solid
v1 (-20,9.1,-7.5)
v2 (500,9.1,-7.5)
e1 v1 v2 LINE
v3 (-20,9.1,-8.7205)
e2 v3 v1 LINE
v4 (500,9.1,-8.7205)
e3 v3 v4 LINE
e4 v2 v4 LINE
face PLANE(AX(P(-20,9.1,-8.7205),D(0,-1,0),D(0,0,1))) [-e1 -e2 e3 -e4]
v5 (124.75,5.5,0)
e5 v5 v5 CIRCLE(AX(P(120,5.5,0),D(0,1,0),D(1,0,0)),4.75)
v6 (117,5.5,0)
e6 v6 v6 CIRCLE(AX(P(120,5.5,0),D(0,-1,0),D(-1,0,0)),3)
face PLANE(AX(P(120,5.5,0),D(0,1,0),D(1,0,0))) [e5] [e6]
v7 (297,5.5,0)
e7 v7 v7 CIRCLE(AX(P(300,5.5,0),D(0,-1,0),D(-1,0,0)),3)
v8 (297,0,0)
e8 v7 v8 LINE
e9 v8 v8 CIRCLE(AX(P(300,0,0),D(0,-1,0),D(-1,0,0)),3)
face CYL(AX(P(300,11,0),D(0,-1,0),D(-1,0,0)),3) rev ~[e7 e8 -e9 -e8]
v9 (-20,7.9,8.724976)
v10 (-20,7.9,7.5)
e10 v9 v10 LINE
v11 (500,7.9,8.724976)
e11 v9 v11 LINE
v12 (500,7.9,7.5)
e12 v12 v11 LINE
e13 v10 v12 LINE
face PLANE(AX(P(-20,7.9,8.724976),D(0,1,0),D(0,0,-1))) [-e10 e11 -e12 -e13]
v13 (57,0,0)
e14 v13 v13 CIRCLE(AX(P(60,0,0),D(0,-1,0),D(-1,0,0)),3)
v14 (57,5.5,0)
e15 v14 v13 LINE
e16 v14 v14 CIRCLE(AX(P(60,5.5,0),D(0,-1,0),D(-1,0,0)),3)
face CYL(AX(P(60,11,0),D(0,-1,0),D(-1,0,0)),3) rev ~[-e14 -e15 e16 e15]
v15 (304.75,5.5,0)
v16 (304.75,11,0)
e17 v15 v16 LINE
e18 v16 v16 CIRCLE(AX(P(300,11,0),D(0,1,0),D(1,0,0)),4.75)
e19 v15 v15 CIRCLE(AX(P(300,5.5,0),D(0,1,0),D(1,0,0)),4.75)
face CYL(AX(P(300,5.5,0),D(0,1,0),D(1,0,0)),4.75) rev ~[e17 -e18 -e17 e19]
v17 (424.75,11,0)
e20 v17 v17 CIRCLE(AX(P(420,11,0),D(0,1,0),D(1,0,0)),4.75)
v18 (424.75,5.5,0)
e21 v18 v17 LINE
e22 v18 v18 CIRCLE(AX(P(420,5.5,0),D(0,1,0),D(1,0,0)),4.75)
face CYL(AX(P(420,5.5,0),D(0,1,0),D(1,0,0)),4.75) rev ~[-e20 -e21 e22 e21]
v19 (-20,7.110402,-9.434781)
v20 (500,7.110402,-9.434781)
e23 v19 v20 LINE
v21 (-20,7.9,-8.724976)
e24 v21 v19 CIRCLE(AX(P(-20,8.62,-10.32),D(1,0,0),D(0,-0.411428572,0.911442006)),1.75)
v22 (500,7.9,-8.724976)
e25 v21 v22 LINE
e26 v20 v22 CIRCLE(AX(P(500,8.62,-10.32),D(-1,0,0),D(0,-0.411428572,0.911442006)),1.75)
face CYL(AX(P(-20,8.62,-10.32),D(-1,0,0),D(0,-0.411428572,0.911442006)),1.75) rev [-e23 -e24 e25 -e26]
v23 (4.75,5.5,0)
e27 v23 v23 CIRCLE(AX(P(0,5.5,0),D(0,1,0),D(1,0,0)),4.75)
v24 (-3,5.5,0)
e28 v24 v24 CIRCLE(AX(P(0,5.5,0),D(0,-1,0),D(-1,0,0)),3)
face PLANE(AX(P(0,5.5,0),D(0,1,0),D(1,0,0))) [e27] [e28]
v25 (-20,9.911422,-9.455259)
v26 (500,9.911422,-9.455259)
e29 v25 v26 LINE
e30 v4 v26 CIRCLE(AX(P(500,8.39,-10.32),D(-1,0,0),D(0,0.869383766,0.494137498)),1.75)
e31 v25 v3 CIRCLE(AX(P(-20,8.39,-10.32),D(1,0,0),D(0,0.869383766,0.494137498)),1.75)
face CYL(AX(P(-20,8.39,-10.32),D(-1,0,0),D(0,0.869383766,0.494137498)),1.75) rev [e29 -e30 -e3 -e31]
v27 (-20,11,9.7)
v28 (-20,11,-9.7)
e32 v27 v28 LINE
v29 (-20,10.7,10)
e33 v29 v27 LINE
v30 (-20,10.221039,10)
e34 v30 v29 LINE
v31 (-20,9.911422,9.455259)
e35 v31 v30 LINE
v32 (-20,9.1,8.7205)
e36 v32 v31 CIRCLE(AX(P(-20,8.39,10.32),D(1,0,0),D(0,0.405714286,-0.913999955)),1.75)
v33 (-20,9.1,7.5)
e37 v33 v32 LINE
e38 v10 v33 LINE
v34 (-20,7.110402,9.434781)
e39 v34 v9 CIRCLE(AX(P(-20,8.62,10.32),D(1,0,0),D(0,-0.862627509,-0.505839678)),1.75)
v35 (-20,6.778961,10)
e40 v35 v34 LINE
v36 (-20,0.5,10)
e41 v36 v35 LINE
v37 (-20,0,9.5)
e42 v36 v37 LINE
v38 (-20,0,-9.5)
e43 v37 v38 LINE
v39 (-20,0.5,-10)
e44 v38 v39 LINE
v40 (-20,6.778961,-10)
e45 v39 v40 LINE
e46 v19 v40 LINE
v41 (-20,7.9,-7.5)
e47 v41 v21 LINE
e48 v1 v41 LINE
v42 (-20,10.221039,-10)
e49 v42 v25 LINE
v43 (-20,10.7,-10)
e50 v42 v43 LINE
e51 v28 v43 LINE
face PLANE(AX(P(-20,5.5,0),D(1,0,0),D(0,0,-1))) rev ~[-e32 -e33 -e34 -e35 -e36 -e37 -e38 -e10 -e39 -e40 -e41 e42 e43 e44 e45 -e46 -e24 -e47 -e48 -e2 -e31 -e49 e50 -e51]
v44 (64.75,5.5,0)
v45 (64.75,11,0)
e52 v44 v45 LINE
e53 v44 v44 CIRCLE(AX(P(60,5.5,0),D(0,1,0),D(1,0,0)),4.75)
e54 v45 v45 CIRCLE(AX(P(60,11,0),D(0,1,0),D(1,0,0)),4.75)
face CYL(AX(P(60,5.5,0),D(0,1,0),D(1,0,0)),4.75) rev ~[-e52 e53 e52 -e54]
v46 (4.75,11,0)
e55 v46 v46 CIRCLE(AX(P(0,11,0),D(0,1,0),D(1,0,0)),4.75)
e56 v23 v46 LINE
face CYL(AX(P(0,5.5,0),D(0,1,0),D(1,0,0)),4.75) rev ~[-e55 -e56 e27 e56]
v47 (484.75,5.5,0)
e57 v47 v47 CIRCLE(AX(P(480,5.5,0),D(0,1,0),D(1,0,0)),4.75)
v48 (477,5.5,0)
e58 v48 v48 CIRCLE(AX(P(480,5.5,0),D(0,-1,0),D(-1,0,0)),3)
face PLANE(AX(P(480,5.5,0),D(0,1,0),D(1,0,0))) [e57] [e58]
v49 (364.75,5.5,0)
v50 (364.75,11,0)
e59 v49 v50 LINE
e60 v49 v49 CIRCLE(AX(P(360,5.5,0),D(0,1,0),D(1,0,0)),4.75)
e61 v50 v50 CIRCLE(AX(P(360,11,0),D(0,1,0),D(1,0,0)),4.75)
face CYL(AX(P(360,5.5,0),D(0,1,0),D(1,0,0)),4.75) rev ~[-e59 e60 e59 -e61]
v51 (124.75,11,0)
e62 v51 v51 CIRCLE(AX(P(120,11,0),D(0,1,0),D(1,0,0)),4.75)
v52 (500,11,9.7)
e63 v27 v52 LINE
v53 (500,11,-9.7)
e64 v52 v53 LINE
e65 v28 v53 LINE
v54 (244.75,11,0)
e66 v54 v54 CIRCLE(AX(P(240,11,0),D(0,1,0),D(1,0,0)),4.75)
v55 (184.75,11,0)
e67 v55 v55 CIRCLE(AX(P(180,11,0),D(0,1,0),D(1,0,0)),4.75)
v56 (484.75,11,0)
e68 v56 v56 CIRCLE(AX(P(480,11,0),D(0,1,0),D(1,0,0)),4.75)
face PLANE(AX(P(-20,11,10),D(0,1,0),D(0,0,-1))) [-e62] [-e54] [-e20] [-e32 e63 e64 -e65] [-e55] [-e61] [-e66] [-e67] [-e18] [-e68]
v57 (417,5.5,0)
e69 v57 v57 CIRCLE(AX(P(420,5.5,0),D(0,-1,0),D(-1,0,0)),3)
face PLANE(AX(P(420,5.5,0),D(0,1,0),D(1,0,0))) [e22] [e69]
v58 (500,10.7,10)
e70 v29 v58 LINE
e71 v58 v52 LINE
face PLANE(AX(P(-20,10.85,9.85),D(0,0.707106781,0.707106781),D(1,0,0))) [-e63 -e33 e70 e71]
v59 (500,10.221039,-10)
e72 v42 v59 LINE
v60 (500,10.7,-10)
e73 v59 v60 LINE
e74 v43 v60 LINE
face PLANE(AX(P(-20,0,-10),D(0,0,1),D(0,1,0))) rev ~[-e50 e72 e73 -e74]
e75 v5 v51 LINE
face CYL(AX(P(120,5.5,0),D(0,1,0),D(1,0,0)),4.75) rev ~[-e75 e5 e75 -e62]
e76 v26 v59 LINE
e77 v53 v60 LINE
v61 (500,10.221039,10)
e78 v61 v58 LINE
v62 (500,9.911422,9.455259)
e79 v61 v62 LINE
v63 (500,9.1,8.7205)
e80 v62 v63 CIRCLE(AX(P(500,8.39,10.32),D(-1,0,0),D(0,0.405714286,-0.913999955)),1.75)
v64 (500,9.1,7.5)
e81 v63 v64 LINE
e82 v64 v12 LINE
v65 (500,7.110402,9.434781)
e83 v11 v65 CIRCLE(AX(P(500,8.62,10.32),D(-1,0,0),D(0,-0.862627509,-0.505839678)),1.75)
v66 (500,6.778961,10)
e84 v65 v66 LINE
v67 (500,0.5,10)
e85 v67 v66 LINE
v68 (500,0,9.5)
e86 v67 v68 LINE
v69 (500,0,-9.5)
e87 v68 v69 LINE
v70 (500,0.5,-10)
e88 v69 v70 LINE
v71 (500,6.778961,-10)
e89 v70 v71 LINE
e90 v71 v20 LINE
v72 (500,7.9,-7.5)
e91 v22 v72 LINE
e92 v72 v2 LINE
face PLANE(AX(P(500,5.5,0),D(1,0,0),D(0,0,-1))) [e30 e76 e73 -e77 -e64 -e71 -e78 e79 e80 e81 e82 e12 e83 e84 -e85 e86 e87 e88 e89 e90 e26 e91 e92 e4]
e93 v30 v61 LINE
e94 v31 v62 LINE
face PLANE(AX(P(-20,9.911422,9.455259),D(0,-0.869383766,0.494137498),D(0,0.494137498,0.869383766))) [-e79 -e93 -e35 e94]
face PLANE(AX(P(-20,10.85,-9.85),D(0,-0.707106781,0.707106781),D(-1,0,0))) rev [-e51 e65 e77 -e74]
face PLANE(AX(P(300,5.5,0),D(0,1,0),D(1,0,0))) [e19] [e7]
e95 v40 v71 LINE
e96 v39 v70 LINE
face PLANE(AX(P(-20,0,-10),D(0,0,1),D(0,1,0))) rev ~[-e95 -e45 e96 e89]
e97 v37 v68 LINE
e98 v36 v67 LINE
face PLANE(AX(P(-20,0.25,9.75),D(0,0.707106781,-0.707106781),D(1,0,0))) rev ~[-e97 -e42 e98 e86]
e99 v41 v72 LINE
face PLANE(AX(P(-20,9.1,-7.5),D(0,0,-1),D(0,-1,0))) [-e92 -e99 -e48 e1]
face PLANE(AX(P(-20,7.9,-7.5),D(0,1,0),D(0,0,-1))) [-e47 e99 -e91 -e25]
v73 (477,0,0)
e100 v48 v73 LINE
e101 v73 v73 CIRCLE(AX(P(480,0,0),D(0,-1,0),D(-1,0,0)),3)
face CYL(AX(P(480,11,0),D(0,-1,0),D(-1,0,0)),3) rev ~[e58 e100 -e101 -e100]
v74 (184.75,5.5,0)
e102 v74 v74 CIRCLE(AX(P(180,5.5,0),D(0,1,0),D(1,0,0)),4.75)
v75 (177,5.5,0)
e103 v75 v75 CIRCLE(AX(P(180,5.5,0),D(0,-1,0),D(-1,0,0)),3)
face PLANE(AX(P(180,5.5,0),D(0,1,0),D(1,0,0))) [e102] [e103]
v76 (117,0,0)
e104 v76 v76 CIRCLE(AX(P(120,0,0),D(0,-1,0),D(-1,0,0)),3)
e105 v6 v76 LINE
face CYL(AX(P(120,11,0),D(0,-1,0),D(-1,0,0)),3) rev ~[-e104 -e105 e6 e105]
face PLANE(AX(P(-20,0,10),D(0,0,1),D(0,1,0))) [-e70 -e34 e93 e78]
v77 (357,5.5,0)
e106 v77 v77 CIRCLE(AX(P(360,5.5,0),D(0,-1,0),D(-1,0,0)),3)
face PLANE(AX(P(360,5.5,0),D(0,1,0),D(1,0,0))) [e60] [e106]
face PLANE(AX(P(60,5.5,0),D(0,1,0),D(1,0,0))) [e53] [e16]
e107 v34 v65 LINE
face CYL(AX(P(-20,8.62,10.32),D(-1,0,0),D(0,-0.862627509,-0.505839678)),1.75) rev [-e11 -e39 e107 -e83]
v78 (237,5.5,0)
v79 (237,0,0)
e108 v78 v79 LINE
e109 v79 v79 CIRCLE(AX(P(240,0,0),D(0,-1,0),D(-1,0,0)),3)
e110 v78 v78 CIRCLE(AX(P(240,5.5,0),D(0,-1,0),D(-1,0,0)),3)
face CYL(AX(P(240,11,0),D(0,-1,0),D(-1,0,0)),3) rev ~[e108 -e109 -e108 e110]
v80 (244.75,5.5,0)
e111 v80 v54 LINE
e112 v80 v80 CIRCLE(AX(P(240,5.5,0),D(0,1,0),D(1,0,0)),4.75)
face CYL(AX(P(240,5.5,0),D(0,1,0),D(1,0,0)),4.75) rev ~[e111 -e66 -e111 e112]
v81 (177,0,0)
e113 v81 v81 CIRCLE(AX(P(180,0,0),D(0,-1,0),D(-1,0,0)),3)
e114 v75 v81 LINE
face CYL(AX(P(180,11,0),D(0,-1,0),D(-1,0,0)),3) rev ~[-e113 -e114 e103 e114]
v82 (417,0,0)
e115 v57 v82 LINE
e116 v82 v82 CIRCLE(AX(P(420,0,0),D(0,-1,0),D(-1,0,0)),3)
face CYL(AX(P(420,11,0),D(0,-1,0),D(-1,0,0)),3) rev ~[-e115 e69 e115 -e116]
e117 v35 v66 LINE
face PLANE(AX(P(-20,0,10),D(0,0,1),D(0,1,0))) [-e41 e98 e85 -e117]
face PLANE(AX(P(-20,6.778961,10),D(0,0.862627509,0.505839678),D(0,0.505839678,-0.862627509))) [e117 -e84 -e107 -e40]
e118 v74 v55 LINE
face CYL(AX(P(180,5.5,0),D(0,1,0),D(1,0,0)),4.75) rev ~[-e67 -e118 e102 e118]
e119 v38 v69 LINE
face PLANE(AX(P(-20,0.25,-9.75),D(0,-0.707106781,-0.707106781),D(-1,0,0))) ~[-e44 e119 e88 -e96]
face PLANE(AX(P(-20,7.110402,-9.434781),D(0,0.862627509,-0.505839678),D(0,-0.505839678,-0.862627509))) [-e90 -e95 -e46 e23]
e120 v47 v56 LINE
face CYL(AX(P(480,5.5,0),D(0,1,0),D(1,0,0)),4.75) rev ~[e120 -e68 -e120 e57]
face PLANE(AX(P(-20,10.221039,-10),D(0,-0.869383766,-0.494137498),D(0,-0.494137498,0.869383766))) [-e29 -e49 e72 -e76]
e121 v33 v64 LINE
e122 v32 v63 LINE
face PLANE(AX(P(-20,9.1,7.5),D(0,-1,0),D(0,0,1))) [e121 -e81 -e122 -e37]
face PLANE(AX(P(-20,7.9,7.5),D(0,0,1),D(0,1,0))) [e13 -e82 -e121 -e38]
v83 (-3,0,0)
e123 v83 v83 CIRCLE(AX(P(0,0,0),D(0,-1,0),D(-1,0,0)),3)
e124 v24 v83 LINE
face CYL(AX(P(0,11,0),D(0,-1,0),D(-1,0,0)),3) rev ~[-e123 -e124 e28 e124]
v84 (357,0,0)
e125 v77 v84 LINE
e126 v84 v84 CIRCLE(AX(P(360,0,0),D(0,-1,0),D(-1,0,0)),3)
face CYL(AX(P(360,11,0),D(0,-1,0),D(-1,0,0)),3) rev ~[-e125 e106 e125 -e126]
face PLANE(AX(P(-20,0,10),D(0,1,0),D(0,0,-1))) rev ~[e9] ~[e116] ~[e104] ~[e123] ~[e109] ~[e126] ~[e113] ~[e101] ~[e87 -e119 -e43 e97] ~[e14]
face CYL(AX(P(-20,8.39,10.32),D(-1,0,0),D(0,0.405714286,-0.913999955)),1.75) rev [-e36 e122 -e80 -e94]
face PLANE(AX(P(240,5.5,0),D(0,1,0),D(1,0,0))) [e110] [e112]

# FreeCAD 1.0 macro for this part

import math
import FreeCAD as App
import Part
import Sketcher

V = App.Vector


def edges_at(feature, points):
    """Names of the edges that pass closest to the given points."""
    edges = feature.Shape.Edges
    near = lambda p: min(range(len(edges)), key=lambda i: edges[i].distToShape(Part.Vertex(*p))[0])
    return sorted({f"Edge{near(p) + 1}" for p in points})

doc = App.newDocument("Part")
params = doc.addObject("Spreadsheet::Sheet", "Params")
for row, (alias, value) in enumerate([
    ("sketch1_width", "11 mm"),
    ("sketch1_height", "20 mm"),
    ("pad1_length", "520 mm"),
    ("sketch2_radius", "1.75 mm"),
    ("sketch2_width", "1.2 mm"),
    ("sketch3_diameter", "6 mm"),
    ("hole_diameter", "6 mm"),
    ("hole_cbore_diameter", "9.5 mm"),
    ("hole_cbore_depth", "5.5 mm"),
    ("linearpattern_pitch", "60 mm"),
    ("chamfer_size", "0.3 mm"),
    ("chamfer2_size", "0.5 mm"),
], start=1):
    params.set(f"A{row}", alias)
    params.set(f"B{row}", "=" + value)
    params.setAlias(f"B{row}", alias)

body = doc.addObject("PartDesign::Body", "Body")

# Sketch on YZ plane
sketch1 = body.newObject("Sketcher::SketchObject", "Sketch")
sketch1.AttachmentSupport = (doc.getObject("YZ_Plane"), [""])
sketch1.MapMode = "FlatFace"
sketch1.AttachmentOffset = App.Placement(V(0, 0, -20), App.Rotation())
sketch1.addGeometry([
    Part.LineSegment(V(11, 10, 0), V(0, 10, 0)),
    Part.LineSegment(V(0, 10, 0), V(0, -10, 0)),
    Part.LineSegment(V(0, -10, 0), V(11, -10, 0)),
    Part.LineSegment(V(11, -10, 0), V(11, 10, 0)),
], False)
sketch1.addConstraint([
    Sketcher.Constraint("Coincident", 0, 2, 1, 1),
    Sketcher.Constraint("Coincident", 1, 2, 2, 1),
    Sketcher.Constraint("Coincident", 2, 2, 3, 1),
    Sketcher.Constraint("Coincident", 3, 2, 0, 1),
    Sketcher.Constraint("Horizontal", 0),
    Sketcher.Constraint("Vertical", 1),
    Sketcher.Constraint("Horizontal", 2),
    Sketcher.Constraint("Vertical", 3),
    Sketcher.Constraint("Symmetric", 0, 2, 1, 2, -1, 1),
    Sketcher.Constraint("DistanceX", 0, 2, 0, 1, 11.0),
    Sketcher.Constraint("DistanceY", 1, 2, 1, 1, 20.0),
])
sketch1.setExpression("Constraints[9]", "Params.sketch1_width")
sketch1.setExpression("Constraints[10]", "Params.sketch1_height")
pad1 = body.newObject("PartDesign::Pad", "Pad")
pad1.Profile = sketch1
pad1.setExpression("Length", "Params.pad1_length")

# Sketch on YZ plane
sketch2 = body.newObject("Sketcher::SketchObject", "Sketch001")
sketch2.AttachmentSupport = (doc.getObject("YZ_Plane"), [""])
sketch2.MapMode = "FlatFace"
sketch2.AttachmentOffset = App.Placement(V(0, 0, -20), App.Rotation())
sketch2.addGeometry([
    Part.LineSegment(V(10.2, -10, 0), V(9.9, -9.5, 0)),  # 0
    Part.ArcOfCircle(Part.Circle(V(8.4, -10.3, 0), V(0, 0, 1), 1.8), math.radians(30), math.radians(66)),  # 1
    Part.LineSegment(V(9.1, -8.7, 0), V(9.1, -7.5, 0)),  # 2
    Part.LineSegment(V(9.1, -7.5, 0), V(7.9, -7.5, 0)),  # 3
    Part.LineSegment(V(7.9, -7.5, 0), V(7.9, -8.7, 0)),  # 4
    Part.ArcOfCircle(Part.Circle(V(8.6, -10.3, 0), V(0, 0, 1), 1.8), math.radians(114), math.radians(150)),  # 5
    Part.LineSegment(V(7.1, -9.4, 0), V(6.8, -10, 0)),  # 6
    Part.LineSegment(V(6.8, -10, 0), V(10.2, -10, 0)),  # 7
    Part.LineSegment(V(10.2, 10, 0), V(6.8, 10, 0)),  # 8
    Part.LineSegment(V(6.8, 10, 0), V(7.1, 9.4, 0)),  # 9
    Part.ArcOfCircle(Part.Circle(V(8.6, 10.3, 0), V(0, 0, 1), 1.8), math.radians(-150), math.radians(-114)),  # 10
    Part.LineSegment(V(7.9, 8.7, 0), V(7.9, 7.5, 0)),  # 11
    Part.LineSegment(V(7.9, 7.5, 0), V(9.1, 7.5, 0)),  # 12
    Part.LineSegment(V(9.1, 7.5, 0), V(9.1, 8.7, 0)),  # 13
    Part.ArcOfCircle(Part.Circle(V(8.4, 10.3, 0), V(0, 0, 1), 1.8), math.radians(-66), math.radians(-30)),  # 14
    Part.LineSegment(V(9.9, 9.5, 0), V(10.2, 10, 0)),  # 15
], False)
sketch2.addConstraint([
    Sketcher.Constraint("Tangent", 0, 2, 1, 1),
    Sketcher.Constraint("Coincident", 1, 2, 2, 1),
    Sketcher.Constraint("Coincident", 2, 2, 3, 1),
    Sketcher.Constraint("Coincident", 3, 2, 4, 1),
    Sketcher.Constraint("Coincident", 4, 2, 5, 1),
    Sketcher.Constraint("Tangent", 5, 2, 6, 1),
    Sketcher.Constraint("Coincident", 6, 2, 7, 1),
    Sketcher.Constraint("Coincident", 7, 2, 0, 1),
    Sketcher.Constraint("Coincident", 8, 2, 9, 1),
    Sketcher.Constraint("Tangent", 9, 2, 10, 1),
    Sketcher.Constraint("Coincident", 10, 2, 11, 1),
    Sketcher.Constraint("Coincident", 11, 2, 12, 1),
    Sketcher.Constraint("Coincident", 12, 2, 13, 1),
    Sketcher.Constraint("Coincident", 13, 2, 14, 1),
    Sketcher.Constraint("Tangent", 14, 2, 15, 1),
    Sketcher.Constraint("Coincident", 15, 2, 8, 1),
    Sketcher.Constraint("Vertical", 2),
    Sketcher.Constraint("Horizontal", 3),
    Sketcher.Constraint("Vertical", 4),
    Sketcher.Constraint("Horizontal", 7),
    Sketcher.Constraint("Horizontal", 8),
    Sketcher.Constraint("Vertical", 11),
    Sketcher.Constraint("Horizontal", 12),
    Sketcher.Constraint("Vertical", 13),
    Sketcher.Constraint("Equal", 1, 5),
    Sketcher.Constraint("Equal", 5, 10),
    Sketcher.Constraint("Equal", 10, 14),
    Sketcher.Constraint("Symmetric", 5, 3, 10, 3, -1),
    Sketcher.Constraint("Symmetric", 1, 3, 14, 3, -1),
    Sketcher.Constraint("Symmetric", 6, 2, 8, 2, -1),
    Sketcher.Constraint("Symmetric", 3, 2, 11, 2, -1),
    Sketcher.Constraint("Horizontal", 1, 3, 5, 3),
    Sketcher.Constraint("Vertical", 2, 2, 12, 2),
    Sketcher.Constraint("Vertical", 0, 2, 14, 2),
    Sketcher.Constraint("Radius", 1, 1.75),
    Sketcher.Constraint("DistanceX", 3, 2, 3, 1, 1.2),
    Sketcher.Constraint("DistanceY", 6, 2, -1, 1, 10.0),
    Sketcher.Constraint("DistanceX", -1, 1, 1, 2, 9.1),
    Sketcher.Constraint("DistanceY", 2, 2, -1, 1, 7.5),
    Sketcher.Constraint("DistanceX", -1, 1, 1, 3, 8.39),
    Sketcher.Constraint("DistanceY", 1, 3, -1, 1, 10.32),
    Sketcher.Constraint("DistanceX", -1, 1, 5, 3, 8.62),
    Sketcher.Constraint("DistanceX", 7, 1, 7, 2, 3.442079),
    Sketcher.Constraint("DistanceX", -1, 1, 5, 2, 7.110402),
])
sketch2.setExpression("Constraints[34]", "Params.sketch2_radius")
sketch2.setExpression("Constraints[35]", "Params.sketch2_width")
pocket1 = body.newObject("PartDesign::Pocket", "Pocket")
pocket1.Profile = sketch2
pocket1.Type = "ThroughAll"
pocket1.Reversed = True

# Sketch on XZ plane
sketch3 = body.newObject("Sketcher::SketchObject", "Sketch002")
sketch3.AttachmentSupport = (doc.getObject("XZ_Plane"), [""])
sketch3.MapMode = "FlatFace"
sketch3.AttachmentOffset = App.Placement(V(0, 0, -11), App.Rotation())
sketch3.addGeometry(Part.Circle(V(0, 0, 0), V(0, 0, 1), 3), False)
sketch3.addConstraint([
    Sketcher.Constraint("Coincident", 0, 3, -1, 1),
    Sketcher.Constraint("Diameter", 0, 6.0),
])
sketch3.setExpression("Constraints[1]", "Params.sketch3_diameter")
doc.recompute()
hole = body.newObject("PartDesign::Hole", "Hole")
hole.Profile = sketch3
hole.ThreadType = "None"
hole.setExpression("Diameter", "Params.hole_diameter")
hole.DepthType = "ThroughAll"
hole.HoleCutType = "Counterbore"
hole.setExpression("HoleCutDiameter", "Params.hole_cbore_diameter")
hole.setExpression("HoleCutDepth", "Params.hole_cbore_depth")
hole.Reversed = True
doc.recompute()

linearpattern = body.newObject("PartDesign::LinearPattern", "LinearPattern")
linearpattern.Originals = [hole]
linearpattern.Direction = (doc.getObject("X_Axis"), [""])
linearpattern.Mode = "offset"
linearpattern.setExpression("Offset", "Params.linearpattern_pitch")
linearpattern.Occurrences = 9
body.Tip = linearpattern
doc.recompute()

chamfer = body.newObject("PartDesign::Chamfer", "Chamfer")
chamfer.Base = (linearpattern, edges_at(linearpattern, [(240, 11, 10), (240, 11, -10)]))
chamfer.setExpression("Size", "Params.chamfer_size")
doc.recompute()

chamfer2 = body.newObject("PartDesign::Chamfer", "Chamfer001")
chamfer2.Base = (chamfer, edges_at(chamfer, [(240, 0, -10), (240, 0, 10)]))
chamfer2.setExpression("Size", "Params.chamfer2_size")

doc.recompute()
